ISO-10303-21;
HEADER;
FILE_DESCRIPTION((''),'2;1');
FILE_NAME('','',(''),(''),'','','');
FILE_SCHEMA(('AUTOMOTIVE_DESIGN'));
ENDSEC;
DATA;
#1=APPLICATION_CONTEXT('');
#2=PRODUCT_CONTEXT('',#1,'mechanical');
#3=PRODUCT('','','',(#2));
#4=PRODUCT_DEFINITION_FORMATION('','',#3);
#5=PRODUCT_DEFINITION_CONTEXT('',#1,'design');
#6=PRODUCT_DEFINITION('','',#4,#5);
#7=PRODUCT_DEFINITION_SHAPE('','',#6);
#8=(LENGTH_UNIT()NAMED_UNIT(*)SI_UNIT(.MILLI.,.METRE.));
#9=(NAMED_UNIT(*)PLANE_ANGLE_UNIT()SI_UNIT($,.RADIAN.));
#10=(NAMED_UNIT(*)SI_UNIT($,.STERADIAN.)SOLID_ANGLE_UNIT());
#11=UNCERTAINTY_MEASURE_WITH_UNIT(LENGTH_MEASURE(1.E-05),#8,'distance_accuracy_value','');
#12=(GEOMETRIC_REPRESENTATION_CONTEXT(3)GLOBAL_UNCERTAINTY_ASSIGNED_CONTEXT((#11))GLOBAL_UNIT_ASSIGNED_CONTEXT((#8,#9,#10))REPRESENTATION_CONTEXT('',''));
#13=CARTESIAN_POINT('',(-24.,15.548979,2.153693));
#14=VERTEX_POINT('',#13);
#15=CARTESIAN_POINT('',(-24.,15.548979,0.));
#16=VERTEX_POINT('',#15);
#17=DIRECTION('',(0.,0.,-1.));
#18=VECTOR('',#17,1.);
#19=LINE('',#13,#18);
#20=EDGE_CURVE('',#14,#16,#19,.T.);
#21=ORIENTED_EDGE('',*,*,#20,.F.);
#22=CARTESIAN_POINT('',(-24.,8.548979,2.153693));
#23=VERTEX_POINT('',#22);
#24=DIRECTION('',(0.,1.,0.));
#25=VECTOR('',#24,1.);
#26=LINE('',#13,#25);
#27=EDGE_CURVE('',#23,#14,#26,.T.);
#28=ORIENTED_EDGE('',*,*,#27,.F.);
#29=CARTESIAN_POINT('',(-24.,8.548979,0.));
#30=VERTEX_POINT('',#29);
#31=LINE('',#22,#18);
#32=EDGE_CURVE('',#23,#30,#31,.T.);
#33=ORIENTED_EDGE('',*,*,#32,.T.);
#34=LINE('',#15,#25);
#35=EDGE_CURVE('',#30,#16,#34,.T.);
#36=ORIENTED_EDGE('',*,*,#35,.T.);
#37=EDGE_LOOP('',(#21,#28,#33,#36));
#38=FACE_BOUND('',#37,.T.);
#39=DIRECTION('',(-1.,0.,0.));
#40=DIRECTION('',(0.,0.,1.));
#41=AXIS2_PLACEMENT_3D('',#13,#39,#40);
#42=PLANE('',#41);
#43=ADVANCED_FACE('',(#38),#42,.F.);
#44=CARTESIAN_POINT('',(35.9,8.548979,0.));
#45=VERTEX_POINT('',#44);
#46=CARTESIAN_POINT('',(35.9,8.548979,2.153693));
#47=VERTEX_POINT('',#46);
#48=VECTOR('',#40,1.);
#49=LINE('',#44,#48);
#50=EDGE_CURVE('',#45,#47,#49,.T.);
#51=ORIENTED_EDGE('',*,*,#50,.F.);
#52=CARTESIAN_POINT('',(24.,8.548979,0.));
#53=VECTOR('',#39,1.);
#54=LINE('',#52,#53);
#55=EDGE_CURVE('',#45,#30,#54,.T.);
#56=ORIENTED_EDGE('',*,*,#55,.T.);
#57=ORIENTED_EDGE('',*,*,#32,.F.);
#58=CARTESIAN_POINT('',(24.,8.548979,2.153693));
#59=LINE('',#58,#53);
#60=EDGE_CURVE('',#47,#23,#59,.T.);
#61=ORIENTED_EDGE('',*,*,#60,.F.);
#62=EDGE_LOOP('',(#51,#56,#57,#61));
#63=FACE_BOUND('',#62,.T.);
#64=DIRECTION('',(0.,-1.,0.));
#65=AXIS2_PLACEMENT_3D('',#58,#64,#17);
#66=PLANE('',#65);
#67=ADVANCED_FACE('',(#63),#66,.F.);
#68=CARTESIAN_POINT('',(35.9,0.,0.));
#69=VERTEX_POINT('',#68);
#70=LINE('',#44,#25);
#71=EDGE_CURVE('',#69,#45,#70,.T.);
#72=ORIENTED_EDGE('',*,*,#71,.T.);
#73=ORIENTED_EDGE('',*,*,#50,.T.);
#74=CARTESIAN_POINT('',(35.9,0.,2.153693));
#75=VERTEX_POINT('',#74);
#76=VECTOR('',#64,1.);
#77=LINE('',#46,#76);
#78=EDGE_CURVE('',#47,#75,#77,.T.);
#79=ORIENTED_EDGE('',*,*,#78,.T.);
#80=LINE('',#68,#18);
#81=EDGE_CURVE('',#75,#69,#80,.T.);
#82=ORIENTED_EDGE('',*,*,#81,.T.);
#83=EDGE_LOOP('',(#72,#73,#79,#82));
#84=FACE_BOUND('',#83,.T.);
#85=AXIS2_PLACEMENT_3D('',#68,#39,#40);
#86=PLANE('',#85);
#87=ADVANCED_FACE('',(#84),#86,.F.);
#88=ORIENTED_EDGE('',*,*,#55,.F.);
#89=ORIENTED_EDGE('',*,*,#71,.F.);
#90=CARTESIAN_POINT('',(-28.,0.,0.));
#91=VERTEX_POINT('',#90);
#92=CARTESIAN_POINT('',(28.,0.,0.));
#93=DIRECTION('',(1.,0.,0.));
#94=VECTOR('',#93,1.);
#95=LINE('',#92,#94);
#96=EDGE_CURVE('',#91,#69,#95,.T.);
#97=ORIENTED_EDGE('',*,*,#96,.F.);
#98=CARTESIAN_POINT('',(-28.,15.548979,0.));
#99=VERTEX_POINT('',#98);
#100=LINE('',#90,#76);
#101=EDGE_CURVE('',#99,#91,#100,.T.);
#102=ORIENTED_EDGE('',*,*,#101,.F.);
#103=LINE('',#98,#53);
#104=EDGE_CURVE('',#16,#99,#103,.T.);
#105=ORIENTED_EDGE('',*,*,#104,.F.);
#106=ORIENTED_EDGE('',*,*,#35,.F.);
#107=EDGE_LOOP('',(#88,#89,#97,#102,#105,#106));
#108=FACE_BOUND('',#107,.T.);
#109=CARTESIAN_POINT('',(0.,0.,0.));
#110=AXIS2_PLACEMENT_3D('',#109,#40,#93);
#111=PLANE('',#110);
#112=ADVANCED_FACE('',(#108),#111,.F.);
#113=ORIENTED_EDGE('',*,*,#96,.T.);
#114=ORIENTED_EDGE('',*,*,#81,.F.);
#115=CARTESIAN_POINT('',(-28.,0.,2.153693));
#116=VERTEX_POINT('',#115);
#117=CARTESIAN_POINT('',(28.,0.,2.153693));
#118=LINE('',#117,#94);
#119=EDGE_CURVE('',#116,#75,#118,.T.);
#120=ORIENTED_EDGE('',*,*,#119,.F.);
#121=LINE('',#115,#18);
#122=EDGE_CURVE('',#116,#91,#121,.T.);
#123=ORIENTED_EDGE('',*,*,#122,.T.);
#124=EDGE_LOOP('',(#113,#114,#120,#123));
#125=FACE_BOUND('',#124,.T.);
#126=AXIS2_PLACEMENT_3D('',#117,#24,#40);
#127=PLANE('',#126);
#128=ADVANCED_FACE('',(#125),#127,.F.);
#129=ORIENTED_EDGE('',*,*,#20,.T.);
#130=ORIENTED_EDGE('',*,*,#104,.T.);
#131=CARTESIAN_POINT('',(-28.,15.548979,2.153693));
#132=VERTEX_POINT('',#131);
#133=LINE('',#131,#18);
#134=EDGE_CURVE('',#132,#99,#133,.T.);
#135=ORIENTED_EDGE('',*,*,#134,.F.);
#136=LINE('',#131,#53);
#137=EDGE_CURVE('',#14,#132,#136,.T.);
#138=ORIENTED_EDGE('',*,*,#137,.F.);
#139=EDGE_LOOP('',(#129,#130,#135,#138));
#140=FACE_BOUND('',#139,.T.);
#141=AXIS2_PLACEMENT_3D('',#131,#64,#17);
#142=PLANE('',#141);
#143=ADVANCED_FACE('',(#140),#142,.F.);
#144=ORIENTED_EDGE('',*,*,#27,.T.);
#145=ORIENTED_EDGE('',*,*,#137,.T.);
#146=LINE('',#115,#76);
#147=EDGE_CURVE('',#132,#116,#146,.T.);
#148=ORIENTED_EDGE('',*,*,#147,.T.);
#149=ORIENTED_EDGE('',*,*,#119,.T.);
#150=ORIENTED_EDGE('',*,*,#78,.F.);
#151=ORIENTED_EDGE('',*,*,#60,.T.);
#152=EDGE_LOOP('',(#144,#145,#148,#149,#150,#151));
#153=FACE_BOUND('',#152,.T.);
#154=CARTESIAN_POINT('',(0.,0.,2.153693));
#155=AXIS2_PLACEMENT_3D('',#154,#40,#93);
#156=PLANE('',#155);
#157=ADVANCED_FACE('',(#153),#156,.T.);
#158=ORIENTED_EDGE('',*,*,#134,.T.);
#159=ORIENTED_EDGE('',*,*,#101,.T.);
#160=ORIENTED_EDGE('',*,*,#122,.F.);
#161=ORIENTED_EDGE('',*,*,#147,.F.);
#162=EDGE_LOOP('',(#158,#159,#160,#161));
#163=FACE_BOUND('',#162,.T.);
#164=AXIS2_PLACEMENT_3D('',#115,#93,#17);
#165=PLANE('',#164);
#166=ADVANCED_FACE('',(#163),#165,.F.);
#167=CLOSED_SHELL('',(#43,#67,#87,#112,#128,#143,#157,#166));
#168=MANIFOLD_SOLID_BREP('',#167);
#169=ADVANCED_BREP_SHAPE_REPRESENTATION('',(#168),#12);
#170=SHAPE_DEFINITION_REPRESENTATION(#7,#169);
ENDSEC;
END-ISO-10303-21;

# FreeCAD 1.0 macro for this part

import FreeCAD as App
import Part
import Sketcher
Q = App.Units.Quantity

doc = App.newDocument("Part")
params = doc.addObject("Spreadsheet::Sheet", "Params")
for row, (alias, value) in enumerate([
    ("sketch1_width", "56 mm"),
    ("sketch1_width2", "4 mm"),
    ("sketch1_height", "7 mm"),
    ("pad1_length", "2.153693 mm"),
    ("sketch2_width", "7 mm"),
    ("pad2_length", "7.9 mm"),
], start=1):
    params.set(f"A{row}", alias)
    params.set(f"B{row}", "=" + value)
    params.setAlias(f"B{row}", alias)

body = doc.addObject("PartDesign::Body", "Body")

# Sketch on XY plane
sketch1 = doc.addObject("Sketcher::SketchObject", "Sketch")
body.addObject(sketch1)
sketch1.AttachmentSupport = (doc.XY_Plane, [""])
sketch1.MapMode = "FlatFace"
sketch1.addGeometry([
    Part.LineSegment(App.Vector(-28, 0, 0), App.Vector(28, 0, 0)),  # 0
    Part.LineSegment(App.Vector(28, 0, 0), App.Vector(28, 15.5, 0)),  # 1
    Part.LineSegment(App.Vector(28, 15.5, 0), App.Vector(24, 15.5, 0)),  # 2
    Part.LineSegment(App.Vector(24, 15.5, 0), App.Vector(24, 8.5, 0)),  # 3
    Part.LineSegment(App.Vector(24, 8.5, 0), App.Vector(-24, 8.5, 0)),  # 4
    Part.LineSegment(App.Vector(-24, 8.5, 0), App.Vector(-24, 15.5, 0)),  # 5
    Part.LineSegment(App.Vector(-24, 15.5, 0), App.Vector(-28, 15.5, 0)),  # 6
    Part.LineSegment(App.Vector(-28, 15.5, 0), App.Vector(-28, 0, 0)),  # 7
], False)
sketch1.addConstraint([
    Sketcher.Constraint("Coincident", 0, 2, 1, 1),
    Sketcher.Constraint("Coincident", 1, 2, 2, 1),
    Sketcher.Constraint("Coincident", 2, 2, 3, 1),
    Sketcher.Constraint("Coincident", 3, 2, 4, 1),
    Sketcher.Constraint("Coincident", 4, 2, 5, 1),
    Sketcher.Constraint("Coincident", 5, 2, 6, 1),
    Sketcher.Constraint("Coincident", 6, 2, 7, 1),
    Sketcher.Constraint("Coincident", 7, 2, 0, 1),
    Sketcher.Constraint("Horizontal", 0),
    Sketcher.Constraint("Vertical", 1),
    Sketcher.Constraint("Horizontal", 2),
    Sketcher.Constraint("Vertical", 3),
    Sketcher.Constraint("Horizontal", 4),
    Sketcher.Constraint("Vertical", 5),
    Sketcher.Constraint("Horizontal", 6),
    Sketcher.Constraint("Vertical", 7),
    Sketcher.Constraint("Symmetric", 0, 2, 7, 2, -1, 1),
    Sketcher.Constraint("Symmetric", 2, 2, 5, 2, -2),
    Sketcher.Constraint("DistanceX", 0, 1, 0, 2, Q("56 mm")),
    Sketcher.Constraint("DistanceX", 2, 2, 2, 1, Q("4 mm")),
    Sketcher.Constraint("DistanceY", 3, 2, 3, 1, Q("7 mm")),
    Sketcher.Constraint("DistanceY", 1, 1, 1, 2, Q("15.548979 mm")),
])
sketch1.setExpression("Constraints[18]", "Params.sketch1_width")
sketch1.setExpression("Constraints[19]", "Params.sketch1_width2")
sketch1.setExpression("Constraints[20]", "Params.sketch1_height")
pad1 = doc.addObject("PartDesign::Pad", "Pad")
body.addObject(pad1)
pad1.Profile = sketch1
pad1.setExpression("Length", "Params.pad1_length")

# Sketch on YZ plane
sketch2 = doc.addObject("Sketcher::SketchObject", "Sketch001")
body.addObject(sketch2)
sketch2.AttachmentSupport = (doc.YZ_Plane, [""])
sketch2.MapMode = "FlatFace"
sketch2.AttachmentOffset = App.Placement(App.Vector(0, 0, 24), App.Rotation())
sketch2.addGeometry([
    Part.LineSegment(App.Vector(15.5, 0, 0), App.Vector(8.5, 0, 0)),
    Part.LineSegment(App.Vector(8.5, 0, 0), App.Vector(8.5, 2.2, 0)),
    Part.LineSegment(App.Vector(8.5, 2.2, 0), App.Vector(15.5, 2.2, 0)),
    Part.LineSegment(App.Vector(15.5, 2.2, 0), App.Vector(15.5, 0, 0)),
], False)
sketch2.addConstraint([
    Sketcher.Constraint("Coincident", 0, 2, 1, 1),
    Sketcher.Constraint("Coincident", 1, 2, 2, 1),
    Sketcher.Constraint("Coincident", 2, 2, 3, 1),
    Sketcher.Constraint("Coincident", 3, 2, 0, 1),
    Sketcher.Constraint("Horizontal", 0),
    Sketcher.Constraint("Vertical", 1),
    Sketcher.Constraint("Horizontal", 2),
    Sketcher.Constraint("Vertical", 3),
    Sketcher.Constraint("PointOnObject", 0, 2, -1),
    Sketcher.Constraint("DistanceX", 0, 2, 0, 1, Q("7 mm")),
    Sketcher.Constraint("DistanceY", 1, 1, 1, 2, Q("2.153693 mm")),
    Sketcher.Constraint("DistanceX", -1, 1, 0, 2, Q("8.548979 mm")),
])
sketch2.setExpression("Constraints[9]", "Params.sketch2_width")
pocket1 = doc.addObject("PartDesign::Pocket", "Pocket")
body.addObject(pocket1)
pocket1.Profile = sketch2
pocket1.Type = "UpToFirst"
pocket1.Reversed = True

# Sketch on YZ plane
sketch3 = doc.addObject("Sketcher::SketchObject", "Sketch002")
body.addObject(sketch3)
sketch3.AttachmentSupport = (doc.YZ_Plane, [""])
sketch3.MapMode = "FlatFace"
sketch3.AttachmentOffset = App.Placement(App.Vector(0, 0, 28), App.Rotation())
sketch3.addGeometry([
    Part.LineSegment(App.Vector(8.5, 2.2, 0), App.Vector(0, 2.2, 0)),
    Part.LineSegment(App.Vector(0, 2.2, 0), App.Vector(0, 0, 0)),
    Part.LineSegment(App.Vector(0, 0, 0), App.Vector(8.5, 0, 0)),
    Part.LineSegment(App.Vector(8.5, 0, 0), App.Vector(8.5, 2.2, 0)),
], False)
sketch3.addConstraint([
    Sketcher.Constraint("Coincident", 0, 2, 1, 1),
    Sketcher.Constraint("Coincident", 1, 2, 2, 1),
    Sketcher.Constraint("Coincident", 2, 2, 3, 1),
    Sketcher.Constraint("Coincident", 3, 2, 0, 1),
    Sketcher.Constraint("Horizontal", 0),
    Sketcher.Constraint("Vertical", 1),
    Sketcher.Constraint("Horizontal", 2),
    Sketcher.Constraint("Vertical", 3),
    Sketcher.Constraint("Coincident", 1, 2, -1, 1),
    Sketcher.Constraint("DistanceX", 0, 2, 0, 1, Q("8.548979 mm")),
    Sketcher.Constraint("DistanceY", 1, 2, 1, 1, Q("2.153693 mm")),
])
pad2 = doc.addObject("PartDesign::Pad", "Pad001")
body.addObject(pad2)
pad2.Profile = sketch3
pad2.setExpression("Length", "Params.pad2_length")

doc.recompute()
